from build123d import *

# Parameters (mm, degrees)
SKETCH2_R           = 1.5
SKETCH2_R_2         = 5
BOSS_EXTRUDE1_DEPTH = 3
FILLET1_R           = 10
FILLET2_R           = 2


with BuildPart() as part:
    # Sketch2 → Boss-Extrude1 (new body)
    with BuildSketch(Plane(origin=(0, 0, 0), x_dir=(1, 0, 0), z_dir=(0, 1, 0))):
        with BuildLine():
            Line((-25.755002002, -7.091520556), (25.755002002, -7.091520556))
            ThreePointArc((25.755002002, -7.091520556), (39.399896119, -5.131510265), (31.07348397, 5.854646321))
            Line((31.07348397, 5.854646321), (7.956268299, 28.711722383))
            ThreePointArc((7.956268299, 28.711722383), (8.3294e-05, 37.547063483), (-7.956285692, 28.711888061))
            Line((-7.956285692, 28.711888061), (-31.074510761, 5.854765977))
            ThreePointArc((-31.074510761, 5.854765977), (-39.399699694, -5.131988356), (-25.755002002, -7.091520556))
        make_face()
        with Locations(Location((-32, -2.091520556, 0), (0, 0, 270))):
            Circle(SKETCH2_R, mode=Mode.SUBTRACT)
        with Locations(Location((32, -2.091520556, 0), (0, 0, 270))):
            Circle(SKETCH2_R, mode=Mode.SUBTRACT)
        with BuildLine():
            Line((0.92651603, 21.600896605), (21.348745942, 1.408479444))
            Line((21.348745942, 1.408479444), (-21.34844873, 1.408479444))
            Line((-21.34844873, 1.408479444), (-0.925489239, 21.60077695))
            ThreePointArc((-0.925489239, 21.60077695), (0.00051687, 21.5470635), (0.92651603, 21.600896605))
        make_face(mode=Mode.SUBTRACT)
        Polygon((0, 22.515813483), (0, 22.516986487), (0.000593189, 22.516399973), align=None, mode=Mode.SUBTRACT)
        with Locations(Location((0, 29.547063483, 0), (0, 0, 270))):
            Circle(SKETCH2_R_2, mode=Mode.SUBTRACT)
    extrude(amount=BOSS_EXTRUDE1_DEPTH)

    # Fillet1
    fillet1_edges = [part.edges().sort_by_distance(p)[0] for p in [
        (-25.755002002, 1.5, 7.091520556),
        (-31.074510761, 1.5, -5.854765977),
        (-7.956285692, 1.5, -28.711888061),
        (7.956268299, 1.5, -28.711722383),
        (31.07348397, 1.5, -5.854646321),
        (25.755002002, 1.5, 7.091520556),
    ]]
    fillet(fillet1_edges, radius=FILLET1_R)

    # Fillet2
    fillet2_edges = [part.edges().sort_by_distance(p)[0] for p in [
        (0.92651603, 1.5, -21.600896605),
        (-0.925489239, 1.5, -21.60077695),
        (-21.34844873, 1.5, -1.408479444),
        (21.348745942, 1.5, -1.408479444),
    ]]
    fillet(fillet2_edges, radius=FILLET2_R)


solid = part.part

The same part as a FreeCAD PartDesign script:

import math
import FreeCAD as App
import Part
import Sketcher

V = App.Vector
Q = App.Units.Quantity


def edges_at(feature, points):
    """Names of the edges that pass closest to the given points."""
    edges = feature.Shape.Edges
    near = lambda p: min(range(len(edges)), key=lambda i: edges[i].distToShape(Part.Vertex(*p))[0])
    return sorted({f"Edge{near(p) + 1}" for p in points})

doc = App.newDocument("Part")
body = doc.addObject("PartDesign::Body", "Body")

sketch1 = doc.addObject("Sketcher::SketchObject", "Sketch")
body.addObject(sketch1)
sketch1.AttachmentSupport = (doc.XZ_Plane, [""])
sketch1.MapMode = "FlatFace"
sketch1.addGeometry([
    Part.LineSegment(V(-25.755002, 7.091521, 0), V(25.755002, 7.091521, 0)),
    Part.ArcOfCircle(Part.Circle(V(32, 2.091521, 0), V(0, 0, 1), 8), math.radians(-96.650607), math.radians(141.317813)),
    Part.LineSegment(V(31.073484, -5.854646, 0), V(7.956268, -28.711722, 0)),
    Part.ArcOfCircle(Part.Circle(V(0, -29.547063, 0), V(0, 0, 1), 8), math.radians(174.007578), math.radians(365.993615)),
    Part.LineSegment(V(-7.956286, -28.711888, 0), V(-31.074511, -5.854766, 0)),
    Part.ArcOfCircle(Part.Circle(V(-32, 2.091521, 0), V(0, 0, 1), 8), math.radians(38.682187), math.radians(276.643203)),
    Part.Circle(V(-32, 2.091521, 0), V(0, 0, 1), 1.5),
    Part.Circle(V(32, 2.091521, 0), V(0, 0, 1), 1.5),
    Part.ArcOfCircle(Part.Circle(V(0, -29.547064, 0), V(0, 0, 1), 8), math.radians(83.349393), math.radians(96.643203)),
    Part.LineSegment(V(0.926516, -21.600897, 0), V(21.348746, -1.408479, 0)),
    Part.LineSegment(V(21.348746, -1.408479, 0), V(-21.348449, -1.408479, 0)),
    Part.LineSegment(V(-21.348449, -1.408479, 0), V(-0.925489, -21.600777, 0)),
    Part.LineSegment(V(0.000593, -22.5164, 0), V(0, -22.515813, 0)),
    Part.LineSegment(V(0, -22.515813, 0), V(0, -22.516986, 0)),
    Part.LineSegment(V(0, -22.516986, 0), V(0.000593, -22.5164, 0)),
    Part.Circle(V(0, -29.547063, 0), V(0, 0, 1), 5),
], False)
sketch1.addConstraint([
    Sketcher.Constraint("Coincident", 0, 2, 1, 2),
    Sketcher.Constraint("Coincident", 1, 1, 2, 1),
    Sketcher.Constraint("Coincident", 2, 2, 3, 2),
    Sketcher.Constraint("Coincident", 3, 1, 4, 1),
    Sketcher.Constraint("Coincident", 4, 2, 5, 2),
    Sketcher.Constraint("Coincident", 5, 1, 0, 1),
    Sketcher.Constraint("Coincident", 8, 1, 9, 1),
    Sketcher.Constraint("Coincident", 9, 2, 10, 1),
    Sketcher.Constraint("Coincident", 10, 2, 11, 1),
    Sketcher.Constraint("Coincident", 11, 2, 8, 2),
    Sketcher.Constraint("Coincident", 12, 2, 13, 1),
    Sketcher.Constraint("Coincident", 13, 2, 14, 1),
    Sketcher.Constraint("Coincident", 14, 2, 12, 1),
    Sketcher.Constraint("Horizontal", 0),
    Sketcher.Constraint("Horizontal", 10),
    Sketcher.Constraint("Vertical", 13),
    Sketcher.Constraint("Coincident", 6, 3, 5, 3),
    Sketcher.Constraint("Coincident", 7, 3, 1, 3),
    Sketcher.Constraint("Coincident", 8, 3, 3, 3),
    Sketcher.Constraint("Coincident", 15, 3, 3, 3),
    Sketcher.Constraint("Equal", 1, 3),
    Sketcher.Constraint("Equal", 3, 5),
    Sketcher.Constraint("Equal", 6, 7),
    Sketcher.Constraint("Equal", 5, 8),
    Sketcher.Constraint("Symmetric", 1, 3, 5, 3, -2),
    Sketcher.Constraint("PointOnObject", 3, 3, -2),
    Sketcher.Constraint("PointOnObject", 12, 2, -2),
    Sketcher.Constraint("Parallel", 2, 9),
    Sketcher.Constraint("Parallel", 4, 11),
    Sketcher.Constraint("Parallel", 11, 12),
    Sketcher.Constraint("Parallel", 9, 14),
    Sketcher.Constraint("Diameter", 6, Q("3 mm")),
    Sketcher.Constraint("Diameter", 15, Q("10 mm")),
    Sketcher.Constraint("Radius", 1, Q("8 mm")),
    Sketcher.Constraint("DistanceX", -1, 1, 1, 3, Q("32 mm")),
    Sketcher.Constraint("DistanceY", 1, 3, 0, 2, Q("5 mm")),
    Sketcher.Constraint("DistanceY", 9, 2, 0, 2, Q("8.5 mm")),
    Sketcher.Constraint("DistanceY", 14, 2, -1, 1, Q("22.5164 mm")),
    Sketcher.Constraint("DistanceX", 3, 1, 8, 1, Q("8.882802 mm")),
    Sketcher.Constraint("DistanceX", 10, 2, 10, 1, Q("42.697195 mm")),
    Sketcher.Constraint("DistanceY", 13, 2, 13, 1, Q("0.001173 mm")),
    Sketcher.Constraint("DistanceY", -1, 1, 1, 3, Q("2.091521 mm")),
    Sketcher.Constraint("DistanceX", -1, 1, 2, 2, Q("7.956268 mm")),
    Sketcher.Constraint("DistanceY", 3, 1, -1, 1, Q("28.711888 mm")),
    Sketcher.Constraint("DistanceX", 4, 2, -1, 1, Q("31.074511 mm")),
    Sketcher.Constraint("DistanceX", 10, 2, -1, 1, Q("21.348449 mm")),
    Sketcher.Constraint("DistanceX", 11, 2, -1, 1, Q("0.925489 mm")),
])
pad1 = doc.addObject("PartDesign::Pad", "Pad")
body.addObject(pad1)
pad1.Profile = sketch1
pad1.Length = 3
pad1.Reversed = True
doc.recompute()

fillet = doc.addObject("PartDesign::Fillet", "Fillet")
body.addObject(fillet)
fillet.Base = (pad1, edges_at(pad1, [
    (-25.755, 1.5, 7.092),
    (-31.075, 1.5, -5.855),
    (-7.956, 1.5, -28.712),
    (7.956, 1.5, -28.712),
    (31.073, 1.5, -5.855),
    (25.755, 1.5, 7.092),
]))
fillet.Radius = 10
doc.recompute()

fillet2 = doc.addObject("PartDesign::Fillet", "Fillet001")
body.addObject(fillet2)
fillet2.Base = (fillet, edges_at(fillet, [
    (0.927, 1.5, -21.601),
    (-0.925, 1.5, -21.601),
    (-21.348, 1.5, -1.408),
    (21.349, 1.5, -1.408),
]))
fillet2.Radius = 2

doc.recompute()
